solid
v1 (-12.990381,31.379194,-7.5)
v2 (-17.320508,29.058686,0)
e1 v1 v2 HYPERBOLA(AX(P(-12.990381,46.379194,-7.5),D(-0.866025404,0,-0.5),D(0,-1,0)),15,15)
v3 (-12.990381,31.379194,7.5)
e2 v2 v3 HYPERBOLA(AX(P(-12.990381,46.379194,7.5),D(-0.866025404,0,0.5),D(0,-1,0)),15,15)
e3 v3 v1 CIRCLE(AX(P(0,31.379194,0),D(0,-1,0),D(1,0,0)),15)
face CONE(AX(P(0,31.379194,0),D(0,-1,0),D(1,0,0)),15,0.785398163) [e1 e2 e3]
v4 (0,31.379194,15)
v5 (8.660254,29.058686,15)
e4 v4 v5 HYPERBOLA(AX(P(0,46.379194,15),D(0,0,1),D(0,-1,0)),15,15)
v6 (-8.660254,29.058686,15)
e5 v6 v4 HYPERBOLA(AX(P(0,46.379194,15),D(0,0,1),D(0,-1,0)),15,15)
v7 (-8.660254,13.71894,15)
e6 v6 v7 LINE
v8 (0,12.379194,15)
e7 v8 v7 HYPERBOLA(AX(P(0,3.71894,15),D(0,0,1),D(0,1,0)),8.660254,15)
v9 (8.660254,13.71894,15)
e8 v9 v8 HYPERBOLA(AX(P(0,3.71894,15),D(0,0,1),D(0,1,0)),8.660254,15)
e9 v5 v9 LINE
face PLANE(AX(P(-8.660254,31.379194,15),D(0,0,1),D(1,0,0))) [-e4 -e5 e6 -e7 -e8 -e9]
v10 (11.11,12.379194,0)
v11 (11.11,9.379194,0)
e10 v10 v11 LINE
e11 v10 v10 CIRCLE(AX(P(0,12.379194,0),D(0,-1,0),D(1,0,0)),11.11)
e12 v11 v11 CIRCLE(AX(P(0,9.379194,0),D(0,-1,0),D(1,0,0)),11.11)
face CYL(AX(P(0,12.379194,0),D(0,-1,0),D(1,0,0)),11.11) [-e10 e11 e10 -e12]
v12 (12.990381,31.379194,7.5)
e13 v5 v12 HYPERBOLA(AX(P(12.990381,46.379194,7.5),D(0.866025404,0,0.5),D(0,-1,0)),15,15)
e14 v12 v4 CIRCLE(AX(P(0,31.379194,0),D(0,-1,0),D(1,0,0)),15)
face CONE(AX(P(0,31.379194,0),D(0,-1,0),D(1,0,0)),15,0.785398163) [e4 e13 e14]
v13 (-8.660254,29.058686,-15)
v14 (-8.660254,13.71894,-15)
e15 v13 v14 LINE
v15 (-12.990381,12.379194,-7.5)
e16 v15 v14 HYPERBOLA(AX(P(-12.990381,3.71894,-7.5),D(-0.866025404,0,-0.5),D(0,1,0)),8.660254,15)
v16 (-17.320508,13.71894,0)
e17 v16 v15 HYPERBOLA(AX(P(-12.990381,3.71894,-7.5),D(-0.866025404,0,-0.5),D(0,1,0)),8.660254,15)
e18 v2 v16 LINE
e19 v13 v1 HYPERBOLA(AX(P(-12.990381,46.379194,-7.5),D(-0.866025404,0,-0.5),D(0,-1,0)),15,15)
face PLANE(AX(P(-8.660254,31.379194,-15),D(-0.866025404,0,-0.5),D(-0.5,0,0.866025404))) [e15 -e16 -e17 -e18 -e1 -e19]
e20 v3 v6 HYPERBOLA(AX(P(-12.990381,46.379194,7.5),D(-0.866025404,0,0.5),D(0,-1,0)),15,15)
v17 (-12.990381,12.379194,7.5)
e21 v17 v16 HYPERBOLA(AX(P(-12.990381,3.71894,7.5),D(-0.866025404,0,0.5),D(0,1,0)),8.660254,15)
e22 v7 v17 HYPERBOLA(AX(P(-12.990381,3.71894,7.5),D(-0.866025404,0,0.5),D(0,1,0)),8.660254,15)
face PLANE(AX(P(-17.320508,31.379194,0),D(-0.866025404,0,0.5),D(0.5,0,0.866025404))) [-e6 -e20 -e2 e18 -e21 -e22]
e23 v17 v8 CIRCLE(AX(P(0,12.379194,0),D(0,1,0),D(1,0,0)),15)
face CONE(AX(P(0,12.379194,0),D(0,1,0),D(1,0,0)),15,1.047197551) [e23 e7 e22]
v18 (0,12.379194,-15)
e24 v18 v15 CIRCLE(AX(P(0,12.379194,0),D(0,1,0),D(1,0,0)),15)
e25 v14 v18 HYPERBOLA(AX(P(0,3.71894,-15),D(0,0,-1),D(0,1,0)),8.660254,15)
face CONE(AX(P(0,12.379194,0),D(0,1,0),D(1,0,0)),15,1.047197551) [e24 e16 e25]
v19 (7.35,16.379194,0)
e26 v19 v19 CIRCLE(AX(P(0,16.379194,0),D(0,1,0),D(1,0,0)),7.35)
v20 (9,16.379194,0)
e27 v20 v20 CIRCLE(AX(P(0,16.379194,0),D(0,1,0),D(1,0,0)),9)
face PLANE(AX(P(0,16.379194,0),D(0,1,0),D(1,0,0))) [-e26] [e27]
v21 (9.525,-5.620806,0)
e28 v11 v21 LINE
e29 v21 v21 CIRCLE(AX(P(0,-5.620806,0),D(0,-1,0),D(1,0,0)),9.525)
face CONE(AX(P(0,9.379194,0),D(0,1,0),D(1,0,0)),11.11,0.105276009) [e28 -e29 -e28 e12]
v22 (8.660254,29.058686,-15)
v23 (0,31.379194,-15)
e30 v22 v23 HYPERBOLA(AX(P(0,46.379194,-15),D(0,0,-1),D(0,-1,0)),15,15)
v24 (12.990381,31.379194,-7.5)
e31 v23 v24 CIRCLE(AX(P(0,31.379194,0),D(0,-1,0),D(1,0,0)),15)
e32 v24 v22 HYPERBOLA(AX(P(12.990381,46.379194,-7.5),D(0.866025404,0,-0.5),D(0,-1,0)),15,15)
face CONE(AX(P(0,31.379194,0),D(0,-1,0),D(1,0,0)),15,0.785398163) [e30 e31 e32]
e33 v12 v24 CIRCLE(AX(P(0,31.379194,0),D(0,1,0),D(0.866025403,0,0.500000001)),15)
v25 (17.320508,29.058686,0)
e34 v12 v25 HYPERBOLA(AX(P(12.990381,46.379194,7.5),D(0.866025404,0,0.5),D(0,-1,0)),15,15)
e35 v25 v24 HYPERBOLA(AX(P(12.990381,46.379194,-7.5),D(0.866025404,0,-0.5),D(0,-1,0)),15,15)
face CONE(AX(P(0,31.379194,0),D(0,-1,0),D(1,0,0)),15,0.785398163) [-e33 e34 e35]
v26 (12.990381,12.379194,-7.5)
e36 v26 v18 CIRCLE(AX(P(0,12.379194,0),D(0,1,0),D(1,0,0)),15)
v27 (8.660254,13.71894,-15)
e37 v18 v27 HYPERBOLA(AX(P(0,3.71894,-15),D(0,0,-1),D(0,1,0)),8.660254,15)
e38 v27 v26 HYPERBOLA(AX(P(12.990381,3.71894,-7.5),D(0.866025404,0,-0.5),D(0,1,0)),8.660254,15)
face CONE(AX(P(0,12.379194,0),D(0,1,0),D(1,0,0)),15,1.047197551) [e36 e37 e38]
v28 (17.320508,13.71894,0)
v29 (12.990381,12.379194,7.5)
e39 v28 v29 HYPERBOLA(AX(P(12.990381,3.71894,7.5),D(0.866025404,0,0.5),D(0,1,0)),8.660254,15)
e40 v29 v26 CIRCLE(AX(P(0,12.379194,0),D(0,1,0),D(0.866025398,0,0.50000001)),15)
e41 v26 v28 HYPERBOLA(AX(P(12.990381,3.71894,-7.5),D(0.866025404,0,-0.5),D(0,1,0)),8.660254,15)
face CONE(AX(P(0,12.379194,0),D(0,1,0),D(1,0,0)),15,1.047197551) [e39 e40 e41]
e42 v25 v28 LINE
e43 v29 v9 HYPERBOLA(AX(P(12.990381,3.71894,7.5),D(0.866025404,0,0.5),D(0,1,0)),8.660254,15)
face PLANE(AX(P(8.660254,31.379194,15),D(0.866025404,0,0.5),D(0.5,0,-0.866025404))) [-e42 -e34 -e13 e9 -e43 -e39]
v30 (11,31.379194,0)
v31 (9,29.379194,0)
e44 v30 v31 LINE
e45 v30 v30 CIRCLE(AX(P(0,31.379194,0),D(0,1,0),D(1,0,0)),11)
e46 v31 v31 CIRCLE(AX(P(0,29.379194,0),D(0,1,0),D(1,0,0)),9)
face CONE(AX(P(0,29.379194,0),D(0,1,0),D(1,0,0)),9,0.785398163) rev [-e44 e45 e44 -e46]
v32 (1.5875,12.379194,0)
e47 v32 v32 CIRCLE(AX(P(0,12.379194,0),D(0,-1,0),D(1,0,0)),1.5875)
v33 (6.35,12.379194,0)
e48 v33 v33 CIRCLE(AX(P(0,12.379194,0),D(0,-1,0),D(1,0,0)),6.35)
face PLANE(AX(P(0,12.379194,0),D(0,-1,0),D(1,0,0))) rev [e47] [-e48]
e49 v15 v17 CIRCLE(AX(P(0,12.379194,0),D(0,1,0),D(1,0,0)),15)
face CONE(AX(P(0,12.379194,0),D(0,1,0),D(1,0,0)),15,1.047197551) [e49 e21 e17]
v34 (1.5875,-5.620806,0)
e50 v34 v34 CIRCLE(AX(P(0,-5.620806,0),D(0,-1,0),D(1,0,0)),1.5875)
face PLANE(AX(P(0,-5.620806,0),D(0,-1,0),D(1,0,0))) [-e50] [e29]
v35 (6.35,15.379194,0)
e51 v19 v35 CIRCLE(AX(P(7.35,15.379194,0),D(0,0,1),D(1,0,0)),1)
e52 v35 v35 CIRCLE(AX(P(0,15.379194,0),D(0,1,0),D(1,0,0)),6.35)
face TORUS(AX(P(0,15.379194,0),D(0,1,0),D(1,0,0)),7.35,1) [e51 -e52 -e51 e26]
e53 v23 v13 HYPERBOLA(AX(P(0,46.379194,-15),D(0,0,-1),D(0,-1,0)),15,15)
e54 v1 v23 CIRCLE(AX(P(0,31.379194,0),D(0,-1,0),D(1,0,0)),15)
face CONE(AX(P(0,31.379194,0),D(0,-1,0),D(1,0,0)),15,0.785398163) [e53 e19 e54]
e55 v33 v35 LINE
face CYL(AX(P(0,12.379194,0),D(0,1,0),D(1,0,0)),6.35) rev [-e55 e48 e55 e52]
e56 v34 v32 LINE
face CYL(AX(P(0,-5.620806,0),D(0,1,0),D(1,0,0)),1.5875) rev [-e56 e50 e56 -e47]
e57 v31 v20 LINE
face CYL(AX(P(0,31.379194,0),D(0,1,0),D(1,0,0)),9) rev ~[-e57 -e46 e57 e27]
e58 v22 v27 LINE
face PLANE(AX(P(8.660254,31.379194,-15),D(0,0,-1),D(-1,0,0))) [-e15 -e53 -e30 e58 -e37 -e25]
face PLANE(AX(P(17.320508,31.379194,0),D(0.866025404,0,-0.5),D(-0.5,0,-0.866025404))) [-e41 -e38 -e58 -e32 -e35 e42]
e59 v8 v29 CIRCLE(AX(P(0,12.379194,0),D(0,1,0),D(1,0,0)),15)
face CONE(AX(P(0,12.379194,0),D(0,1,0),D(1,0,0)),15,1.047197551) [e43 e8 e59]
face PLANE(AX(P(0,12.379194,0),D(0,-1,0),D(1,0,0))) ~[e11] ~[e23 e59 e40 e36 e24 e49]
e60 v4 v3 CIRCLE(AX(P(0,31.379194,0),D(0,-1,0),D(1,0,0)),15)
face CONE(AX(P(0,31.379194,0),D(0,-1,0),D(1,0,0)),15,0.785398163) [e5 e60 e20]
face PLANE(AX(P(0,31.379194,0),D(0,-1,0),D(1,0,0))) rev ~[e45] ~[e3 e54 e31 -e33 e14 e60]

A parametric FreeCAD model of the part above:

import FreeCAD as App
import Part
import Sketcher

V = App.Vector
Q = App.Units.Quantity


def edges_at(feature, points):
    """Names of the edges that pass closest to the given points."""
    edges = feature.Shape.Edges
    near = lambda p: min(range(len(edges)), key=lambda i: edges[i].distToShape(Part.Vertex(*p))[0])
    return sorted({f"Edge{near(p) + 1}" for p in points})

doc = App.newDocument("Part")
body = doc.addObject("PartDesign::Body", "Body")

# Sketch on XY plane
sketch1 = body.newObject("Sketcher::SketchObject", "Sketch")
sketch1.AttachmentSupport = (doc.getObject("XY_Plane"), [""])
sketch1.MapMode = "FlatFace"
sketch1.addGeometry(Part.LineSegment(V(22, 31.4, 0), V(6.3, 31.4, 0)), False)
sketch1.addGeometry(Part.LineSegment(V(6.3, 31.4, 0), V(6.3, 12.4, 0)), False)
sketch1.addGeometry(Part.LineSegment(V(6.3, 12.4, 0), V(1.6, 12.4, 0)), False)
sketch1.addGeometry(Part.LineSegment(V(1.6, 12.4, 0), V(1.6, -5.6, 0)), False)
sketch1.addGeometry(Part.LineSegment(V(1.6, -5.6, 0), V(9.5, -5.6, 0)), False)
sketch1.addGeometry(Part.LineSegment(V(9.5, -5.6, 0), V(11.1, 9.4, 0)), False)
sketch1.addGeometry(Part.LineSegment(V(11.1, 9.4, 0), V(11.1, 12.4, 0)), False)
sketch1.addGeometry(Part.LineSegment(V(11.1, 12.4, 0), V(22, 12.4, 0)), False)
sketch1.addGeometry(Part.LineSegment(V(22, 12.4, 0), V(22, 31.4, 0)), False)
sketch1.addConstraint(Sketcher.Constraint("Coincident", 0, 2, 1, 1))
sketch1.addConstraint(Sketcher.Constraint("Coincident", 1, 2, 2, 1))
sketch1.addConstraint(Sketcher.Constraint("Coincident", 2, 2, 3, 1))
sketch1.addConstraint(Sketcher.Constraint("Coincident", 3, 2, 4, 1))
sketch1.addConstraint(Sketcher.Constraint("Coincident", 4, 2, 5, 1))
sketch1.addConstraint(Sketcher.Constraint("Coincident", 5, 2, 6, 1))
sketch1.addConstraint(Sketcher.Constraint("Coincident", 6, 2, 7, 1))
sketch1.addConstraint(Sketcher.Constraint("Coincident", 7, 2, 8, 1))
sketch1.addConstraint(Sketcher.Constraint("Coincident", 8, 2, 0, 1))
sketch1.addConstraint(Sketcher.Constraint("Horizontal", 0))
sketch1.addConstraint(Sketcher.Constraint("Vertical", 1))
sketch1.addConstraint(Sketcher.Constraint("Horizontal", 2))
sketch1.addConstraint(Sketcher.Constraint("Vertical", 3))
sketch1.addConstraint(Sketcher.Constraint("Horizontal", 4))
sketch1.addConstraint(Sketcher.Constraint("Vertical", 6))
sketch1.addConstraint(Sketcher.Constraint("Horizontal", 7))
sketch1.addConstraint(Sketcher.Constraint("Vertical", 8))
sketch1.addConstraint(Sketcher.Constraint("Horizontal", 2, 2, 6, 2))
sketch1.addConstraint(Sketcher.Constraint("DistanceY", 1, 2, 1, 1, Q("19 mm")))
sketch1.addConstraint(Sketcher.Constraint("DistanceY", 3, 2, 3, 1, Q("18 mm")))
sketch1.addConstraint(Sketcher.Constraint("DistanceY", 6, 1, 6, 2, Q("3 mm")))
sketch1.addConstraint(Sketcher.Constraint("DistanceX", -1, 1, 7, 2, Q("22 mm")))
sketch1.addConstraint(Sketcher.Constraint("DistanceX", 0, 2, 0, 1, Q("15.65 mm")))
sketch1.addConstraint(Sketcher.Constraint("DistanceX", 7, 1, 7, 2, Q("10.89 mm")))
sketch1.addConstraint(Sketcher.Constraint("DistanceX", 2, 2, 2, 1, Q("4.7625 mm")))
sketch1.addConstraint(Sketcher.Constraint("DistanceX", 4, 1, 4, 2, Q("7.9375 mm")))
sketch1.addConstraint(Sketcher.Constraint("DistanceY", -1, 1, 0, 2, Q("31.379194 mm")))
revolution = body.newObject("PartDesign::Revolution", "Revolution")
revolution.Profile = sketch1
revolution.ReferenceAxis = (sketch1, ["V_Axis"])
revolution.Angle = 360

# Sketch on XZ plane
sketch2 = body.newObject("Sketcher::SketchObject", "Sketch001")
sketch2.AttachmentSupport = (doc.getObject("XZ_Plane"), [""])
sketch2.MapMode = "FlatFace"
sketch2.AttachmentOffset = App.Placement(V(0, 0, -31.379194), App.Rotation())
sketch2.addGeometry(Part.LineSegment(V(-30, -30, 0), V(-30, 30, 0)), False)
sketch2.addGeometry(Part.LineSegment(V(-30, 30, 0), V(30, 30, 0)), False)
sketch2.addGeometry(Part.LineSegment(V(30, 30, 0), V(30, -30, 0)), False)
sketch2.addGeometry(Part.LineSegment(V(30, -30, 0), V(-30, -30, 0)), False)
sketch2.addGeometry(Part.LineSegment(V(9, -15, 0), V(17, 0, 0)), False)
sketch2.addGeometry(Part.LineSegment(V(17, 0, 0), V(9, 15, 0)), False)
sketch2.addGeometry(Part.LineSegment(V(9, 15, 0), V(-9, 15, 0)), False)
sketch2.addGeometry(Part.LineSegment(V(-9, 15, 0), V(-17, 0, 0)), False)
sketch2.addGeometry(Part.LineSegment(V(-17, 0, 0), V(-9, -15, 0)), False)
sketch2.addGeometry(Part.LineSegment(V(-9, -15, 0), V(9, -15, 0)), False)
sketch2.addConstraint(Sketcher.Constraint("Coincident", 0, 2, 1, 1))
sketch2.addConstraint(Sketcher.Constraint("Coincident", 1, 2, 2, 1))
sketch2.addConstraint(Sketcher.Constraint("Coincident", 2, 2, 3, 1))
sketch2.addConstraint(Sketcher.Constraint("Coincident", 3, 2, 0, 1))
sketch2.addConstraint(Sketcher.Constraint("Coincident", 4, 2, 5, 1))
sketch2.addConstraint(Sketcher.Constraint("Coincident", 5, 2, 6, 1))
sketch2.addConstraint(Sketcher.Constraint("Coincident", 6, 2, 7, 1))
sketch2.addConstraint(Sketcher.Constraint("Coincident", 7, 2, 8, 1))
sketch2.addConstraint(Sketcher.Constraint("Coincident", 8, 2, 9, 1))
sketch2.addConstraint(Sketcher.Constraint("Coincident", 9, 2, 4, 1))
sketch2.addConstraint(Sketcher.Constraint("Vertical", 0))
sketch2.addConstraint(Sketcher.Constraint("Horizontal", 1))
sketch2.addConstraint(Sketcher.Constraint("Vertical", 2))
sketch2.addConstraint(Sketcher.Constraint("Horizontal", 3))
sketch2.addConstraint(Sketcher.Constraint("Horizontal", 6))
sketch2.addConstraint(Sketcher.Constraint("Horizontal", 9))
sketch2.addConstraint(Sketcher.Constraint("Symmetric", 0, 2, 2, 2, -1, 1))
sketch2.addConstraint(Sketcher.Constraint("Symmetric", 4, 2, 7, 2, -1, 1))
sketch2.addConstraint(Sketcher.Constraint("Symmetric", 5, 2, 8, 2, -1, 1))
sketch2.addConstraint(Sketcher.Constraint("PointOnObject", 4, 2, -1))
sketch2.addConstraint(Sketcher.Constraint("Parallel", 4, 7))
sketch2.addConstraint(Sketcher.Constraint("Vertical", 6, 2, 8, 2))
sketch2.addConstraint(Sketcher.Constraint("Equal", 3, 0))
sketch2.addConstraint(Sketcher.Constraint("Angle", 4, Q("60 deg")))
sketch2.addConstraint(Sketcher.Constraint("DistanceY", -1, 1, 5, 2, Q("15 mm")))
sketch2.addConstraint(Sketcher.Constraint("DistanceX", 1, 1, 1, 2, Q("60.478 mm")))
sketch2.addConstraint(Sketcher.Constraint("DistanceX", 6, 2, 6, 1, Q("17.320508 mm")))
pocket1 = body.newObject("PartDesign::Pocket", "Pocket")
pocket1.Profile = sketch2
pocket1.Length = 70
pocket1.Reversed = True

# Sketch on XZ plane
sketch3 = body.newObject("Sketcher::SketchObject", "Sketch002")
sketch3.AttachmentSupport = (doc.getObject("XZ_Plane"), [""])
sketch3.MapMode = "FlatFace"
sketch3.AttachmentOffset = App.Placement(V(0, 0, -31.379194), App.Rotation())
sketch3.addGeometry(Part.LineSegment(V(-94, -92, 0), V(-94, 92, 0)), False)
sketch3.addGeometry(Part.LineSegment(V(-94, 92, 0), V(94, 92, 0)), False)
sketch3.addGeometry(Part.LineSegment(V(94, 92, 0), V(94, -92, 0)), False)
sketch3.addGeometry(Part.LineSegment(V(94, -92, 0), V(-94, -92, 0)), False)
sketch3.addGeometry(Part.Circle(V(0, 0, 0), V(0, 0, 1), 15), False)
sketch3.addConstraint(Sketcher.Constraint("Coincident", 0, 2, 1, 1))
sketch3.addConstraint(Sketcher.Constraint("Coincident", 1, 2, 2, 1))
sketch3.addConstraint(Sketcher.Constraint("Coincident", 2, 2, 3, 1))
sketch3.addConstraint(Sketcher.Constraint("Coincident", 3, 2, 0, 1))
sketch3.addConstraint(Sketcher.Constraint("Vertical", 0))
sketch3.addConstraint(Sketcher.Constraint("Horizontal", 1))
sketch3.addConstraint(Sketcher.Constraint("Vertical", 2))
sketch3.addConstraint(Sketcher.Constraint("Horizontal", 3))
sketch3.addConstraint(Sketcher.Constraint("Coincident", 4, 3, -1, 1))
sketch3.addConstraint(Sketcher.Constraint("Symmetric", 0, 2, 2, 2, -1, 1))
sketch3.addConstraint(Sketcher.Constraint("Diameter", 4, Q("30 mm")))
sketch3.addConstraint(Sketcher.Constraint("DistanceY", 0, 1, 0, 2, Q("183.78 mm")))
sketch3.addConstraint(Sketcher.Constraint("DistanceX", 1, 1, 1, 2, Q("188.422 mm")))
pocket2 = body.newObject("PartDesign::Pocket", "Pocket001")
pocket2.Profile = sketch3
pocket2.Length = 70
pocket2.Reversed = True
pocket2.TaperAngle = 45

# Sketch on XZ plane
sketch4 = body.newObject("Sketcher::SketchObject", "Sketch003")
sketch4.AttachmentSupport = (doc.getObject("XZ_Plane"), [""])
sketch4.MapMode = "FlatFace"
sketch4.AttachmentOffset = App.Placement(V(0, 0, -31.379194), App.Rotation())
sketch4.addGeometry(Part.Circle(V(0, 0, 0), V(0, 0, 1), 9), False)
sketch4.addConstraint(Sketcher.Constraint("Coincident", 0, 3, -1, 1))
sketch4.addConstraint(Sketcher.Constraint("Diameter", 0, Q("18 mm")))
pocket3 = body.newObject("PartDesign::Pocket", "Pocket002")
pocket3.Profile = sketch4
pocket3.Length = 15
pocket3.Reversed = True
doc.recompute()

chamfer = body.newObject("PartDesign::Chamfer", "Chamfer")
chamfer.Base = (pocket3, edges_at(pocket3, [(-9, 31.379, 0)]))
chamfer.Size = 2
doc.recompute()

fillet = body.newObject("PartDesign::Fillet", "Fillet")
fillet.Base = (chamfer, edges_at(chamfer, [(-6.35, 16.379, 0)]))
fillet.Radius = 1

# Sketch on XZ plane
sketch5 = body.newObject("Sketcher::SketchObject", "Sketch004")
sketch5.AttachmentSupport = (doc.getObject("XZ_Plane"), [""])
sketch5.MapMode = "FlatFace"
sketch5.AttachmentOffset = App.Placement(V(0, 0, -12.379194), App.Rotation())
sketch5.addGeometry(Part.LineSegment(V(-42, 39, 0), V(-42, -39, 0)), False)
sketch5.addGeometry(Part.LineSegment(V(-42, -39, 0), V(42, -39, 0)), False)
sketch5.addGeometry(Part.LineSegment(V(42, -39, 0), V(42, 39, 0)), False)
sketch5.addGeometry(Part.LineSegment(V(42, 39, 0), V(-42, 39, 0)), False)
sketch5.addGeometry(Part.Circle(V(0, 0, 0), V(0, 0, 1), 15), False)
sketch5.addConstraint(Sketcher.Constraint("Coincident", 0, 2, 1, 1))
sketch5.addConstraint(Sketcher.Constraint("Coincident", 1, 2, 2, 1))
sketch5.addConstraint(Sketcher.Constraint("Coincident", 2, 2, 3, 1))
sketch5.addConstraint(Sketcher.Constraint("Coincident", 3, 2, 0, 1))
sketch5.addConstraint(Sketcher.Constraint("Vertical", 0))
sketch5.addConstraint(Sketcher.Constraint("Horizontal", 1))
sketch5.addConstraint(Sketcher.Constraint("Vertical", 2))
sketch5.addConstraint(Sketcher.Constraint("Horizontal", 3))
sketch5.addConstraint(Sketcher.Constraint("Coincident", 4, 3, -1, 1))
sketch5.addConstraint(Sketcher.Constraint("Symmetric", 0, 2, 2, 2, -1, 1))
sketch5.addConstraint(Sketcher.Constraint("Diameter", 4, Q("30 mm")))
sketch5.addConstraint(Sketcher.Constraint("DistanceY", 0, 2, 0, 1, Q("78.42 mm")))
sketch5.addConstraint(Sketcher.Constraint("DistanceX", 1, 1, 1, 2, Q("83.062 mm")))
pocket4 = body.newObject("PartDesign::Pocket", "Pocket003")
pocket4.Profile = sketch5
pocket4.Length = 10
pocket4.TaperAngle = 60

doc.recompute()
